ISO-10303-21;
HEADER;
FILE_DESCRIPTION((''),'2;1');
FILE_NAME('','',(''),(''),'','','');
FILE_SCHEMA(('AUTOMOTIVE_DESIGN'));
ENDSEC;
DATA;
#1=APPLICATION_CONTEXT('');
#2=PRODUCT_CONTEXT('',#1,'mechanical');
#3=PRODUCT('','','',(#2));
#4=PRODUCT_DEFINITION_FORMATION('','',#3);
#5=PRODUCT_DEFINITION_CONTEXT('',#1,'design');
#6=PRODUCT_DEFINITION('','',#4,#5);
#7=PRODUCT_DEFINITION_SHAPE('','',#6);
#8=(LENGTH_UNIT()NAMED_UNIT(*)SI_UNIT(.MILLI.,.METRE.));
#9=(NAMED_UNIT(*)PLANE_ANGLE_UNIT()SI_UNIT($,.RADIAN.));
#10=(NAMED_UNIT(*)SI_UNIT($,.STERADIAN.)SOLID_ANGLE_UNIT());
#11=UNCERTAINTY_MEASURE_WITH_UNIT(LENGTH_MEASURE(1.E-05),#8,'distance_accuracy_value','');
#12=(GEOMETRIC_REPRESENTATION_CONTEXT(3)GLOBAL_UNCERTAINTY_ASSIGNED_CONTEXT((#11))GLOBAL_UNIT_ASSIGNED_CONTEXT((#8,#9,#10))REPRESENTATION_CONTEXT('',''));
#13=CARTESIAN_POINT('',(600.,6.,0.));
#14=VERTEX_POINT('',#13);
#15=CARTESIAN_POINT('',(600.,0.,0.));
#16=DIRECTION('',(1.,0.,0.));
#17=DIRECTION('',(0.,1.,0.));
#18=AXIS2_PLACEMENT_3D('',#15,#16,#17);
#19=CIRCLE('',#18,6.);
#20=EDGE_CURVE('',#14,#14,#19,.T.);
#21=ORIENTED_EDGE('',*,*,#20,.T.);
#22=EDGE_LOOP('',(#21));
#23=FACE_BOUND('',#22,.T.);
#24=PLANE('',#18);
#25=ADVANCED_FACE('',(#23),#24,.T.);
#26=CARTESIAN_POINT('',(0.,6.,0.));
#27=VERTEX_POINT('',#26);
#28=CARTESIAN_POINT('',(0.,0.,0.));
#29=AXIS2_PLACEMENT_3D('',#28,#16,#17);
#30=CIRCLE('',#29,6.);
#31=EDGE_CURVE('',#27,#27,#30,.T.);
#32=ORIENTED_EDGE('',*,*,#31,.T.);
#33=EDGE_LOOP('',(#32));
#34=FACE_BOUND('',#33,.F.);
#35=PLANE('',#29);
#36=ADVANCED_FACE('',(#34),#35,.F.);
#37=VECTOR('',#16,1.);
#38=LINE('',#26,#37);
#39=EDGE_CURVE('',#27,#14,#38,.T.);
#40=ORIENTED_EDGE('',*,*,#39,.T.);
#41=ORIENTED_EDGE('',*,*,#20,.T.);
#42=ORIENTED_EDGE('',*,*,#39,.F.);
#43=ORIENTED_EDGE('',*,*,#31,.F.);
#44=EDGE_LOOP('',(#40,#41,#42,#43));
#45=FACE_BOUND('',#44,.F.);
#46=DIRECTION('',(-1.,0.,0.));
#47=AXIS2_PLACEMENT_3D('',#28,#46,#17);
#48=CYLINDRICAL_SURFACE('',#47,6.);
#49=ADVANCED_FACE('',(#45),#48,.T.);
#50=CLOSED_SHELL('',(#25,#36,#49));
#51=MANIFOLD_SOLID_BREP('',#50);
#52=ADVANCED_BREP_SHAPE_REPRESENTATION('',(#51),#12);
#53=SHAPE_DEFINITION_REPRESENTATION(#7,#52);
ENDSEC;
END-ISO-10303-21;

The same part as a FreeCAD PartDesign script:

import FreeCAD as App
import Part
import Sketcher
from FreeCAD import Vector

doc = App.newDocument("Part")
body = doc.addObject("PartDesign::Body", "Body")

# Sketch on YZ plane
sketch1 = body.newObject("Sketcher::SketchObject", "Sketch")
sketch1.AttachmentSupport = (doc.getObject("YZ_Plane"), [""])
sketch1.MapMode = "FlatFace"
sketch1.addGeometry(Part.Circle(Vector(0, 0, 0), Vector(0, 0, 1), 6), False)
sketch1.addConstraint([
    Sketcher.Constraint("Coincident", 0, 3, -1, 1),
    Sketcher.Constraint("Diameter", 0, 12.0),
])
pad1 = body.newObject("PartDesign::Pad", "Pad")
pad1.Profile = sketch1
pad1.Length = 600

doc.recompute()
